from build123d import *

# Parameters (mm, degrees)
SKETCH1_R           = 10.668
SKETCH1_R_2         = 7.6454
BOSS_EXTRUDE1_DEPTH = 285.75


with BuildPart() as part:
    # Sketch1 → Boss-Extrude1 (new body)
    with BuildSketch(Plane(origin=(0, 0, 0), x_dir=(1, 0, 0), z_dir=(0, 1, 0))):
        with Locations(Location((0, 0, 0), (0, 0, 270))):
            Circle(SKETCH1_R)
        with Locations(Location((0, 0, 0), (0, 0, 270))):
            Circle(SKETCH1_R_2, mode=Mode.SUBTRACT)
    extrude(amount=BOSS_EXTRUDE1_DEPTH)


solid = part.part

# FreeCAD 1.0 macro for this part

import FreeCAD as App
import Part
import Sketcher
Q = App.Units.Quantity

doc = App.newDocument("Part")
params = doc.addObject("Spreadsheet::Sheet", "Params")
for row, (alias, value) in enumerate([
    ("sketch1_diameter", "0.84 in"),
    ("sketch1_diameter2", "0.602 in"),
    ("pad1_length", "11.25 in"),
], start=1):
    params.set(f"A{row}", alias)
    params.set(f"B{row}", "=" + value)
    params.setAlias(f"B{row}", alias)

body = doc.addObject("PartDesign::Body", "Body")

# Sketch on XZ plane
sketch1 = doc.addObject("Sketcher::SketchObject", "Sketch")
body.addObject(sketch1)
sketch1.AttachmentSupport = (doc.XZ_Plane, [""])
sketch1.MapMode = "FlatFace"
sketch1.addGeometry(Part.Circle(App.Vector(0, 0, 0), App.Vector(0, 0, 1), 10.668), False)
sketch1.addGeometry(Part.Circle(App.Vector(0, 0, 0), App.Vector(0, 0, 1), 7.6454), False)
sketch1.addConstraint(Sketcher.Constraint("Coincident", 0, 3, -1, 1))
sketch1.addConstraint(Sketcher.Constraint("Coincident", 1, 3, -1, 1))
sketch1.addConstraint(Sketcher.Constraint("Diameter", 0, Q("0.84 in")))
sketch1.addConstraint(Sketcher.Constraint("Diameter", 1, Q("0.602 in")))
sketch1.setExpression("Constraints[2]", "Params.sketch1_diameter")
sketch1.setExpression("Constraints[3]", "Params.sketch1_diameter2")
pad1 = doc.addObject("PartDesign::Pad", "Pad")
body.addObject(pad1)
pad1.Profile = sketch1
pad1.setExpression("Length", "Params.pad1_length")
pad1.Reversed = True

doc.recompute()
